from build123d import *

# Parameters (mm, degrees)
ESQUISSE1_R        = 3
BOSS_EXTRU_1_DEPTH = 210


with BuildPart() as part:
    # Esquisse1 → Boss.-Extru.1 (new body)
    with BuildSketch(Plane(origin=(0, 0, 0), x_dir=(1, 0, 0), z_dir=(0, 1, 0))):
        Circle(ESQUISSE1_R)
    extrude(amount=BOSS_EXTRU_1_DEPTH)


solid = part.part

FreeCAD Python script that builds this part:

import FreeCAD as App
import Part
import Sketcher

V = App.Vector

doc = App.newDocument("Part")
params = doc.addObject("Spreadsheet::Sheet", "Params")
for row, (alias, value) in enumerate([
    ("sketch1_diameter", "6 mm"),
    ("pad1_length", "210 mm"),
], start=1):
    params.set(f"A{row}", alias)
    params.set(f"B{row}", "=" + value)
    params.setAlias(f"B{row}", alias)

body = doc.addObject("PartDesign::Body", "Body")

# Sketch on XZ plane
sketch1 = body.newObject("Sketcher::SketchObject", "Sketch")
sketch1.AttachmentSupport = (doc.getObject("XZ_Plane"), [""])
sketch1.MapMode = "FlatFace"
sketch1.addGeometry(Part.Circle(V(0, 0, 0), V(0, 0, 1), 3), False)
sketch1.addConstraint(Sketcher.Constraint("Coincident", 0, 3, -1, 1))
sketch1.addConstraint(Sketcher.Constraint("Diameter", 0, 6.0))
sketch1.setExpression("Constraints[1]", "Params.sketch1_diameter")
pad1 = body.newObject("PartDesign::Pad", "Pad")
pad1.Profile = sketch1
pad1.setExpression("Length", "Params.pad1_length")
pad1.Reversed = True

doc.recompute()
